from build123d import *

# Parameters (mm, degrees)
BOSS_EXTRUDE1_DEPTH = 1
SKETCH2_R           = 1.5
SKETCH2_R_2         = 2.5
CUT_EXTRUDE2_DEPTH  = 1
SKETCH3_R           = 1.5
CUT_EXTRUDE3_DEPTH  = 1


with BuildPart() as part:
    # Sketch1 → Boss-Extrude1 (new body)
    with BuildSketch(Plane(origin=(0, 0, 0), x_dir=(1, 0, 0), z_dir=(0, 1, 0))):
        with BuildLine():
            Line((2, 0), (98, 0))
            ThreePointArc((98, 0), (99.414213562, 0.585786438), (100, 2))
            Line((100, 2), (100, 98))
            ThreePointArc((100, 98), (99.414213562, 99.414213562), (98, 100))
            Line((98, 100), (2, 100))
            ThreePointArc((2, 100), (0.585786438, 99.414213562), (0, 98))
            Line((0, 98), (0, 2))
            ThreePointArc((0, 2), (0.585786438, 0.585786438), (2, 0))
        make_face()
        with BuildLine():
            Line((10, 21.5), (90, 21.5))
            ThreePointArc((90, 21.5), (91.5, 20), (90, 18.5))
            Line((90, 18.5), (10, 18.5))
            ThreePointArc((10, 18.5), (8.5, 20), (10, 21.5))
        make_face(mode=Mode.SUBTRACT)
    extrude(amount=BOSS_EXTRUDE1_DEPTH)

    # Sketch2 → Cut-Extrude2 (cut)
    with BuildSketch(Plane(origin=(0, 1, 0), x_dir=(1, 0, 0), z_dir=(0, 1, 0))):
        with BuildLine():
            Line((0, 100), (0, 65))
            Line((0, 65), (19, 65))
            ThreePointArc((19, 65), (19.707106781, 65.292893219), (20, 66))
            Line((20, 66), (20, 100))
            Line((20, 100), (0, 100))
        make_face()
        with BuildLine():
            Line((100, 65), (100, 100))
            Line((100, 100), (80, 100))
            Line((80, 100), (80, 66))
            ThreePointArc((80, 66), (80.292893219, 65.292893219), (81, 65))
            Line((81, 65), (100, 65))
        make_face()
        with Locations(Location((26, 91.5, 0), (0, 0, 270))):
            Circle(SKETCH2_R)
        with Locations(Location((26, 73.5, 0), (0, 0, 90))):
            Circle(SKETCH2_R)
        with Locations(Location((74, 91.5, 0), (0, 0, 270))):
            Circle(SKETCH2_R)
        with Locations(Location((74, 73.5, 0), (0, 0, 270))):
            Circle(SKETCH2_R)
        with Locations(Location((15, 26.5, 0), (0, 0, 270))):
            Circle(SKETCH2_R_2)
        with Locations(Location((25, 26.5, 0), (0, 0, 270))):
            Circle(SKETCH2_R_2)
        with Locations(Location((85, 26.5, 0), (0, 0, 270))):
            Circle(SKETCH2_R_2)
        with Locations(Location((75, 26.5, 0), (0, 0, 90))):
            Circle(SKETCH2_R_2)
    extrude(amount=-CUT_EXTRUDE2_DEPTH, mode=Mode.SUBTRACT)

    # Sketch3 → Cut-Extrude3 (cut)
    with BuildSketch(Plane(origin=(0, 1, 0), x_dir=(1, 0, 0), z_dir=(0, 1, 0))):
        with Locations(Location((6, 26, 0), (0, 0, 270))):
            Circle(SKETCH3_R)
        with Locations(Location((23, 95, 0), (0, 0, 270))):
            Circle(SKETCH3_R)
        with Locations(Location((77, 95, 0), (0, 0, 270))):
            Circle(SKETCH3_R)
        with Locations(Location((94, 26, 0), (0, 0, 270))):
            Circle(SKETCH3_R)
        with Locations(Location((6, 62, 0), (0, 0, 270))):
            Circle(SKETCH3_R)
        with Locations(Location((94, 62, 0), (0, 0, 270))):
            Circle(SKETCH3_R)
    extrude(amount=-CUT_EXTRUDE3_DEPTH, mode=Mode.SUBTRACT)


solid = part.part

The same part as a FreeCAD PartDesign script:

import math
import FreeCAD as App
import Part
import Sketcher

doc = App.newDocument("Part")
params = doc.addObject("Spreadsheet::Sheet", "Params")
for row, (alias, value) in enumerate([
    ("sketch1_radius", "2 mm"),
    ("sketch1_radius2", "1.5 mm"),
    ("sketch1_width", "96 mm"),
    ("sketch1_width2", "80 mm"),
    ("pad1_length", "1 mm"),
    ("sketch2_diameter", "3 mm"),
    ("sketch2_diameter2", "5 mm"),
    ("sketch2_radius", "1 mm"),
    ("sketch2_width", "19 mm"),
    ("sketch2_height", "35 mm"),
    ("pocket1_length", "1 mm"),
    ("sketch3_diameter", "3 mm"),
    ("pocket2_length", "1 mm"),
], start=1):
    params.set(f"A{row}", alias)
    params.set(f"B{row}", "=" + value)
    params.setAlias(f"B{row}", alias)

body = doc.addObject("PartDesign::Body", "Body")

# Sketch on XZ plane
sketch1 = body.newObject("Sketcher::SketchObject", "Sketch")
sketch1.AttachmentSupport = (doc.getObject("XZ_Plane"), [""])
sketch1.MapMode = "FlatFace"
sketch1.addGeometry(Part.LineSegment(App.Vector(2, 0, 0), App.Vector(98, 0, 0)), False)
sketch1.addGeometry(Part.ArcOfCircle(Part.Circle(App.Vector(98, -2, 0), App.Vector(0, 0, 1), 2), math.radians(0), math.radians(90)), False)
sketch1.addGeometry(Part.LineSegment(App.Vector(100, -2, 0), App.Vector(100, -98, 0)), False)
sketch1.addGeometry(Part.ArcOfCircle(Part.Circle(App.Vector(98, -98, 0), App.Vector(0, 0, 1), 2), math.radians(-90), math.radians(0)), False)
sketch1.addGeometry(Part.LineSegment(App.Vector(98, -100, 0), App.Vector(2, -100, 0)), False)
sketch1.addGeometry(Part.ArcOfCircle(Part.Circle(App.Vector(2, -98, 0), App.Vector(0, 0, 1), 2), math.radians(-180), math.radians(-90)), False)
sketch1.addGeometry(Part.LineSegment(App.Vector(0, -98, 0), App.Vector(0, -2, 0)), False)
sketch1.addGeometry(Part.ArcOfCircle(Part.Circle(App.Vector(2, -2, 0), App.Vector(0, 0, 1), 2), math.radians(90), math.radians(180)), False)
sketch1.addGeometry(Part.ArcOfCircle(Part.Circle(App.Vector(10, -20, 0), App.Vector(0, 0, 1), 1.5), math.radians(90), math.radians(270)), False)
sketch1.addGeometry(Part.LineSegment(App.Vector(10, -21.5, 0), App.Vector(90, -21.5, 0)), False)
sketch1.addGeometry(Part.ArcOfCircle(Part.Circle(App.Vector(90, -20, 0), App.Vector(0, 0, 1), 1.5), math.radians(-90), math.radians(90)), False)
sketch1.addGeometry(Part.LineSegment(App.Vector(90, -18.5, 0), App.Vector(10, -18.5, 0)), False)
sketch1.addConstraint(Sketcher.Constraint("Tangent", 0, 2, 1, 2))
sketch1.addConstraint(Sketcher.Constraint("Tangent", 1, 1, 2, 1))
sketch1.addConstraint(Sketcher.Constraint("Tangent", 2, 2, 3, 2))
sketch1.addConstraint(Sketcher.Constraint("Tangent", 3, 1, 4, 1))
sketch1.addConstraint(Sketcher.Constraint("Tangent", 4, 2, 5, 2))
sketch1.addConstraint(Sketcher.Constraint("Tangent", 5, 1, 6, 1))
sketch1.addConstraint(Sketcher.Constraint("Tangent", 6, 2, 7, 2))
sketch1.addConstraint(Sketcher.Constraint("Tangent", 7, 1, 0, 1))
sketch1.addConstraint(Sketcher.Constraint("Tangent", 8, 2, 9, 1))
sketch1.addConstraint(Sketcher.Constraint("Tangent", 9, 2, 10, 1))
sketch1.addConstraint(Sketcher.Constraint("Tangent", 10, 2, 11, 1))
sketch1.addConstraint(Sketcher.Constraint("Tangent", 11, 2, 8, 1))
sketch1.addConstraint(Sketcher.Constraint("Horizontal", 0))
sketch1.addConstraint(Sketcher.Constraint("Vertical", 2))
sketch1.addConstraint(Sketcher.Constraint("Horizontal", 4))
sketch1.addConstraint(Sketcher.Constraint("Vertical", 6))
sketch1.addConstraint(Sketcher.Constraint("Horizontal", 9))
sketch1.addConstraint(Sketcher.Constraint("Horizontal", 11))
sketch1.addConstraint(Sketcher.Constraint("Equal", 1, 3))
sketch1.addConstraint(Sketcher.Constraint("Equal", 3, 5))
sketch1.addConstraint(Sketcher.Constraint("Equal", 5, 7))
sketch1.addConstraint(Sketcher.Constraint("PointOnObject", 0, 2, -1))
sketch1.addConstraint(Sketcher.Constraint("PointOnObject", 5, 1, -2))
sketch1.addConstraint(Sketcher.Constraint("Equal", 4, 2))
sketch1.addConstraint(Sketcher.Constraint("Radius", 1, 2.0))
sketch1.addConstraint(Sketcher.Constraint("Radius", 8, 1.5))
sketch1.addConstraint(Sketcher.Constraint("DistanceX", 0, 1, 0, 2, 96.0))
sketch1.addConstraint(Sketcher.Constraint("DistanceX", 9, 1, 9, 2, 80.0))
sketch1.addConstraint(Sketcher.Constraint("DistanceX", -1, 1, 8, 3, 10.0))
sketch1.addConstraint(Sketcher.Constraint("DistanceY", 8, 3, -1, 1, 20.0))
sketch1.setExpression("Constraints[24]", "Params.sketch1_radius")
sketch1.setExpression("Constraints[25]", "Params.sketch1_radius2")
sketch1.setExpression("Constraints[26]", "Params.sketch1_width")
sketch1.setExpression("Constraints[27]", "Params.sketch1_width2")
pad1 = body.newObject("PartDesign::Pad", "Pad")
pad1.Profile = sketch1
pad1.setExpression("Length", "Params.pad1_length")
pad1.Reversed = True

# Sketch on XZ plane
sketch2 = body.newObject("Sketcher::SketchObject", "Sketch001")
sketch2.AttachmentSupport = (doc.getObject("XZ_Plane"), [""])
sketch2.MapMode = "FlatFace"
sketch2.AttachmentOffset = App.Placement(App.Vector(0, 0, -1), App.Rotation())
sketch2.addGeometry(Part.LineSegment(App.Vector(0, -100, 0), App.Vector(0, -65, 0)), False)
sketch2.addGeometry(Part.LineSegment(App.Vector(0, -65, 0), App.Vector(19, -65, 0)), False)
sketch2.addGeometry(Part.ArcOfCircle(Part.Circle(App.Vector(19, -66, 0), App.Vector(0, 0, 1), 1), math.radians(0), math.radians(90)), False)
sketch2.addGeometry(Part.LineSegment(App.Vector(20, -66, 0), App.Vector(20, -100, 0)), False)
sketch2.addGeometry(Part.LineSegment(App.Vector(20, -100, 0), App.Vector(0, -100, 0)), False)
sketch2.addGeometry(Part.LineSegment(App.Vector(100, -65, 0), App.Vector(100, -100, 0)), False)
sketch2.addGeometry(Part.LineSegment(App.Vector(100, -100, 0), App.Vector(80, -100, 0)), False)
sketch2.addGeometry(Part.LineSegment(App.Vector(80, -100, 0), App.Vector(80, -66, 0)), False)
sketch2.addGeometry(Part.ArcOfCircle(Part.Circle(App.Vector(81, -66, 0), App.Vector(0, 0, 1), 1), math.radians(90), math.radians(180)), False)
sketch2.addGeometry(Part.LineSegment(App.Vector(81, -65, 0), App.Vector(100, -65, 0)), False)
sketch2.addGeometry(Part.Circle(App.Vector(26, -91.5, 0), App.Vector(0, 0, 1), 1.5), False)
sketch2.addGeometry(Part.Circle(App.Vector(26, -73.5, 0), App.Vector(0, 0, 1), 1.5), False)
sketch2.addGeometry(Part.Circle(App.Vector(74, -91.5, 0), App.Vector(0, 0, 1), 1.5), False)
sketch2.addGeometry(Part.Circle(App.Vector(74, -73.5, 0), App.Vector(0, 0, 1), 1.5), False)
sketch2.addGeometry(Part.Circle(App.Vector(15, -26.5, 0), App.Vector(0, 0, 1), 2.5), False)
sketch2.addGeometry(Part.Circle(App.Vector(25, -26.5, 0), App.Vector(0, 0, 1), 2.5), False)
sketch2.addGeometry(Part.Circle(App.Vector(85, -26.5, 0), App.Vector(0, 0, 1), 2.5), False)
sketch2.addGeometry(Part.Circle(App.Vector(75, -26.5, 0), App.Vector(0, 0, 1), 2.5), False)
sketch2.addConstraint(Sketcher.Constraint("Coincident", 0, 2, 1, 1))
sketch2.addConstraint(Sketcher.Constraint("Tangent", 1, 2, 2, 2))
sketch2.addConstraint(Sketcher.Constraint("Tangent", 2, 1, 3, 1))
sketch2.addConstraint(Sketcher.Constraint("Coincident", 3, 2, 4, 1))
sketch2.addConstraint(Sketcher.Constraint("Coincident", 4, 2, 0, 1))
sketch2.addConstraint(Sketcher.Constraint("Coincident", 5, 2, 6, 1))
sketch2.addConstraint(Sketcher.Constraint("Coincident", 6, 2, 7, 1))
sketch2.addConstraint(Sketcher.Constraint("Tangent", 7, 2, 8, 2))
sketch2.addConstraint(Sketcher.Constraint("Tangent", 8, 1, 9, 1))
sketch2.addConstraint(Sketcher.Constraint("Coincident", 9, 2, 5, 1))
sketch2.addConstraint(Sketcher.Constraint("Vertical", 0))
sketch2.addConstraint(Sketcher.Constraint("Horizontal", 1))
sketch2.addConstraint(Sketcher.Constraint("Vertical", 3))
sketch2.addConstraint(Sketcher.Constraint("Horizontal", 4))
sketch2.addConstraint(Sketcher.Constraint("Vertical", 5))
sketch2.addConstraint(Sketcher.Constraint("Horizontal", 6))
sketch2.addConstraint(Sketcher.Constraint("Vertical", 7))
sketch2.addConstraint(Sketcher.Constraint("Horizontal", 9))
sketch2.addConstraint(Sketcher.Constraint("Equal", 2, 8))
sketch2.addConstraint(Sketcher.Constraint("Equal", 10, 11))
sketch2.addConstraint(Sketcher.Constraint("Equal", 11, 12))
sketch2.addConstraint(Sketcher.Constraint("Equal", 12, 13))
sketch2.addConstraint(Sketcher.Constraint("Equal", 14, 15))
sketch2.addConstraint(Sketcher.Constraint("Equal", 15, 16))
sketch2.addConstraint(Sketcher.Constraint("Equal", 16, 17))
sketch2.addConstraint(Sketcher.Constraint("PointOnObject", 0, 2, -2))
sketch2.addConstraint(Sketcher.Constraint("Horizontal", 2, 3, 8, 3))
sketch2.addConstraint(Sketcher.Constraint("Horizontal", 10, 3, 12, 3))
sketch2.addConstraint(Sketcher.Constraint("Horizontal", 11, 3, 13, 3))
sketch2.addConstraint(Sketcher.Constraint("Horizontal", 14, 3, 15, 3))
sketch2.addConstraint(Sketcher.Constraint("Horizontal", 15, 3, 16, 3))
sketch2.addConstraint(Sketcher.Constraint("Horizontal", 16, 3, 17, 3))
sketch2.addConstraint(Sketcher.Constraint("Horizontal", 4, 2, 5, 2))
sketch2.addConstraint(Sketcher.Constraint("Vertical", 10, 3, 11, 3))
sketch2.addConstraint(Sketcher.Constraint("Vertical", 12, 3, 13, 3))
sketch2.addConstraint(Sketcher.Constraint("Equal", 4, 6))
sketch2.addConstraint(Sketcher.Constraint("Diameter", 10, 3.0))
sketch2.addConstraint(Sketcher.Constraint("Diameter", 14, 5.0))
sketch2.addConstraint(Sketcher.Constraint("Radius", 2, 1.0))
sketch2.addConstraint(Sketcher.Constraint("DistanceX", 1, 1, 1, 2, 19.0))
sketch2.addConstraint(Sketcher.Constraint("DistanceY", 0, 1, 0, 2, 35.0))
sketch2.addConstraint(Sketcher.Constraint("DistanceY", 2, 3, -1, 1, 66.0))
sketch2.addConstraint(Sketcher.Constraint("DistanceX", -1, 1, 8, 3, 81.0))
sketch2.addConstraint(Sketcher.Constraint("DistanceX", -1, 1, 10, 3, 26.0))
sketch2.addConstraint(Sketcher.Constraint("DistanceX", -1, 1, 12, 3, 74.0))
sketch2.addConstraint(Sketcher.Constraint("DistanceX", -1, 1, 14, 3, 15.0))
sketch2.addConstraint(Sketcher.Constraint("DistanceX", -1, 1, 15, 3, 25.0))
sketch2.addConstraint(Sketcher.Constraint("DistanceX", -1, 1, 16, 3, 85.0))
sketch2.addConstraint(Sketcher.Constraint("DistanceX", -1, 1, 17, 3, 75.0))
sketch2.addConstraint(Sketcher.Constraint("DistanceY", 10, 3, 11, 3, 18.0))
sketch2.addConstraint(Sketcher.Constraint("DistanceY", 11, 3, 14, 3, 47.0))
sketch2.addConstraint(Sketcher.Constraint("DistanceY", 10, 3, -1, 1, 91.5))
sketch2.setExpression("Constraints[36]", "Params.sketch2_diameter")
sketch2.setExpression("Constraints[37]", "Params.sketch2_diameter2")
sketch2.setExpression("Constraints[38]", "Params.sketch2_radius")
sketch2.setExpression("Constraints[39]", "Params.sketch2_width")
sketch2.setExpression("Constraints[40]", "Params.sketch2_height")
pocket1 = body.newObject("PartDesign::Pocket", "Pocket")
pocket1.Profile = sketch2
pocket1.setExpression("Length", "Params.pocket1_length")
pocket1.Reversed = True

# Sketch on XZ plane
sketch3 = body.newObject("Sketcher::SketchObject", "Sketch002")
sketch3.AttachmentSupport = (doc.getObject("XZ_Plane"), [""])
sketch3.MapMode = "FlatFace"
sketch3.AttachmentOffset = App.Placement(App.Vector(0, 0, -1), App.Rotation())
sketch3.addGeometry(Part.Circle(App.Vector(6, -26, 0), App.Vector(0, 0, 1), 1.5), False)
sketch3.addGeometry(Part.Circle(App.Vector(23, -95, 0), App.Vector(0, 0, 1), 1.5), False)
sketch3.addGeometry(Part.Circle(App.Vector(77, -95, 0), App.Vector(0, 0, 1), 1.5), False)
sketch3.addGeometry(Part.Circle(App.Vector(94, -26, 0), App.Vector(0, 0, 1), 1.5), False)
sketch3.addGeometry(Part.Circle(App.Vector(6, -62, 0), App.Vector(0, 0, 1), 1.5), False)
sketch3.addGeometry(Part.Circle(App.Vector(94, -62, 0), App.Vector(0, 0, 1), 1.5), False)
sketch3.addConstraint(Sketcher.Constraint("Equal", 0, 1))
sketch3.addConstraint(Sketcher.Constraint("Equal", 1, 2))
sketch3.addConstraint(Sketcher.Constraint("Equal", 2, 3))
sketch3.addConstraint(Sketcher.Constraint("Equal", 3, 4))
sketch3.addConstraint(Sketcher.Constraint("Equal", 4, 5))
sketch3.addConstraint(Sketcher.Constraint("Horizontal", 1, 3, 2, 3))
sketch3.addConstraint(Sketcher.Constraint("Horizontal", 0, 3, 3, 3))
sketch3.addConstraint(Sketcher.Constraint("Horizontal", 4, 3, 5, 3))
sketch3.addConstraint(Sketcher.Constraint("Vertical", 0, 3, 4, 3))
sketch3.addConstraint(Sketcher.Constraint("Vertical", 3, 3, 5, 3))
sketch3.addConstraint(Sketcher.Constraint("Diameter", 0, 3.0))
sketch3.addConstraint(Sketcher.Constraint("DistanceX", -1, 1, 0, 3, 6.0))
sketch3.addConstraint(Sketcher.Constraint("DistanceY", 0, 3, -1, 1, 26.0))
sketch3.addConstraint(Sketcher.Constraint("DistanceX", -1, 1, 1, 3, 23.0))
sketch3.addConstraint(Sketcher.Constraint("DistanceY", 1, 3, -1, 1, 95.0))
sketch3.addConstraint(Sketcher.Constraint("DistanceX", -1, 1, 2, 3, 77.0))
sketch3.addConstraint(Sketcher.Constraint("DistanceX", -1, 1, 3, 3, 94.0))
sketch3.addConstraint(Sketcher.Constraint("DistanceY", 4, 3, -1, 1, 62.0))
sketch3.setExpression("Constraints[10]", "Params.sketch3_diameter")
pocket2 = body.newObject("PartDesign::Pocket", "Pocket001")
pocket2.Profile = sketch3
pocket2.setExpression("Length", "Params.pocket2_length")
pocket2.Reversed = True

doc.recompute()
